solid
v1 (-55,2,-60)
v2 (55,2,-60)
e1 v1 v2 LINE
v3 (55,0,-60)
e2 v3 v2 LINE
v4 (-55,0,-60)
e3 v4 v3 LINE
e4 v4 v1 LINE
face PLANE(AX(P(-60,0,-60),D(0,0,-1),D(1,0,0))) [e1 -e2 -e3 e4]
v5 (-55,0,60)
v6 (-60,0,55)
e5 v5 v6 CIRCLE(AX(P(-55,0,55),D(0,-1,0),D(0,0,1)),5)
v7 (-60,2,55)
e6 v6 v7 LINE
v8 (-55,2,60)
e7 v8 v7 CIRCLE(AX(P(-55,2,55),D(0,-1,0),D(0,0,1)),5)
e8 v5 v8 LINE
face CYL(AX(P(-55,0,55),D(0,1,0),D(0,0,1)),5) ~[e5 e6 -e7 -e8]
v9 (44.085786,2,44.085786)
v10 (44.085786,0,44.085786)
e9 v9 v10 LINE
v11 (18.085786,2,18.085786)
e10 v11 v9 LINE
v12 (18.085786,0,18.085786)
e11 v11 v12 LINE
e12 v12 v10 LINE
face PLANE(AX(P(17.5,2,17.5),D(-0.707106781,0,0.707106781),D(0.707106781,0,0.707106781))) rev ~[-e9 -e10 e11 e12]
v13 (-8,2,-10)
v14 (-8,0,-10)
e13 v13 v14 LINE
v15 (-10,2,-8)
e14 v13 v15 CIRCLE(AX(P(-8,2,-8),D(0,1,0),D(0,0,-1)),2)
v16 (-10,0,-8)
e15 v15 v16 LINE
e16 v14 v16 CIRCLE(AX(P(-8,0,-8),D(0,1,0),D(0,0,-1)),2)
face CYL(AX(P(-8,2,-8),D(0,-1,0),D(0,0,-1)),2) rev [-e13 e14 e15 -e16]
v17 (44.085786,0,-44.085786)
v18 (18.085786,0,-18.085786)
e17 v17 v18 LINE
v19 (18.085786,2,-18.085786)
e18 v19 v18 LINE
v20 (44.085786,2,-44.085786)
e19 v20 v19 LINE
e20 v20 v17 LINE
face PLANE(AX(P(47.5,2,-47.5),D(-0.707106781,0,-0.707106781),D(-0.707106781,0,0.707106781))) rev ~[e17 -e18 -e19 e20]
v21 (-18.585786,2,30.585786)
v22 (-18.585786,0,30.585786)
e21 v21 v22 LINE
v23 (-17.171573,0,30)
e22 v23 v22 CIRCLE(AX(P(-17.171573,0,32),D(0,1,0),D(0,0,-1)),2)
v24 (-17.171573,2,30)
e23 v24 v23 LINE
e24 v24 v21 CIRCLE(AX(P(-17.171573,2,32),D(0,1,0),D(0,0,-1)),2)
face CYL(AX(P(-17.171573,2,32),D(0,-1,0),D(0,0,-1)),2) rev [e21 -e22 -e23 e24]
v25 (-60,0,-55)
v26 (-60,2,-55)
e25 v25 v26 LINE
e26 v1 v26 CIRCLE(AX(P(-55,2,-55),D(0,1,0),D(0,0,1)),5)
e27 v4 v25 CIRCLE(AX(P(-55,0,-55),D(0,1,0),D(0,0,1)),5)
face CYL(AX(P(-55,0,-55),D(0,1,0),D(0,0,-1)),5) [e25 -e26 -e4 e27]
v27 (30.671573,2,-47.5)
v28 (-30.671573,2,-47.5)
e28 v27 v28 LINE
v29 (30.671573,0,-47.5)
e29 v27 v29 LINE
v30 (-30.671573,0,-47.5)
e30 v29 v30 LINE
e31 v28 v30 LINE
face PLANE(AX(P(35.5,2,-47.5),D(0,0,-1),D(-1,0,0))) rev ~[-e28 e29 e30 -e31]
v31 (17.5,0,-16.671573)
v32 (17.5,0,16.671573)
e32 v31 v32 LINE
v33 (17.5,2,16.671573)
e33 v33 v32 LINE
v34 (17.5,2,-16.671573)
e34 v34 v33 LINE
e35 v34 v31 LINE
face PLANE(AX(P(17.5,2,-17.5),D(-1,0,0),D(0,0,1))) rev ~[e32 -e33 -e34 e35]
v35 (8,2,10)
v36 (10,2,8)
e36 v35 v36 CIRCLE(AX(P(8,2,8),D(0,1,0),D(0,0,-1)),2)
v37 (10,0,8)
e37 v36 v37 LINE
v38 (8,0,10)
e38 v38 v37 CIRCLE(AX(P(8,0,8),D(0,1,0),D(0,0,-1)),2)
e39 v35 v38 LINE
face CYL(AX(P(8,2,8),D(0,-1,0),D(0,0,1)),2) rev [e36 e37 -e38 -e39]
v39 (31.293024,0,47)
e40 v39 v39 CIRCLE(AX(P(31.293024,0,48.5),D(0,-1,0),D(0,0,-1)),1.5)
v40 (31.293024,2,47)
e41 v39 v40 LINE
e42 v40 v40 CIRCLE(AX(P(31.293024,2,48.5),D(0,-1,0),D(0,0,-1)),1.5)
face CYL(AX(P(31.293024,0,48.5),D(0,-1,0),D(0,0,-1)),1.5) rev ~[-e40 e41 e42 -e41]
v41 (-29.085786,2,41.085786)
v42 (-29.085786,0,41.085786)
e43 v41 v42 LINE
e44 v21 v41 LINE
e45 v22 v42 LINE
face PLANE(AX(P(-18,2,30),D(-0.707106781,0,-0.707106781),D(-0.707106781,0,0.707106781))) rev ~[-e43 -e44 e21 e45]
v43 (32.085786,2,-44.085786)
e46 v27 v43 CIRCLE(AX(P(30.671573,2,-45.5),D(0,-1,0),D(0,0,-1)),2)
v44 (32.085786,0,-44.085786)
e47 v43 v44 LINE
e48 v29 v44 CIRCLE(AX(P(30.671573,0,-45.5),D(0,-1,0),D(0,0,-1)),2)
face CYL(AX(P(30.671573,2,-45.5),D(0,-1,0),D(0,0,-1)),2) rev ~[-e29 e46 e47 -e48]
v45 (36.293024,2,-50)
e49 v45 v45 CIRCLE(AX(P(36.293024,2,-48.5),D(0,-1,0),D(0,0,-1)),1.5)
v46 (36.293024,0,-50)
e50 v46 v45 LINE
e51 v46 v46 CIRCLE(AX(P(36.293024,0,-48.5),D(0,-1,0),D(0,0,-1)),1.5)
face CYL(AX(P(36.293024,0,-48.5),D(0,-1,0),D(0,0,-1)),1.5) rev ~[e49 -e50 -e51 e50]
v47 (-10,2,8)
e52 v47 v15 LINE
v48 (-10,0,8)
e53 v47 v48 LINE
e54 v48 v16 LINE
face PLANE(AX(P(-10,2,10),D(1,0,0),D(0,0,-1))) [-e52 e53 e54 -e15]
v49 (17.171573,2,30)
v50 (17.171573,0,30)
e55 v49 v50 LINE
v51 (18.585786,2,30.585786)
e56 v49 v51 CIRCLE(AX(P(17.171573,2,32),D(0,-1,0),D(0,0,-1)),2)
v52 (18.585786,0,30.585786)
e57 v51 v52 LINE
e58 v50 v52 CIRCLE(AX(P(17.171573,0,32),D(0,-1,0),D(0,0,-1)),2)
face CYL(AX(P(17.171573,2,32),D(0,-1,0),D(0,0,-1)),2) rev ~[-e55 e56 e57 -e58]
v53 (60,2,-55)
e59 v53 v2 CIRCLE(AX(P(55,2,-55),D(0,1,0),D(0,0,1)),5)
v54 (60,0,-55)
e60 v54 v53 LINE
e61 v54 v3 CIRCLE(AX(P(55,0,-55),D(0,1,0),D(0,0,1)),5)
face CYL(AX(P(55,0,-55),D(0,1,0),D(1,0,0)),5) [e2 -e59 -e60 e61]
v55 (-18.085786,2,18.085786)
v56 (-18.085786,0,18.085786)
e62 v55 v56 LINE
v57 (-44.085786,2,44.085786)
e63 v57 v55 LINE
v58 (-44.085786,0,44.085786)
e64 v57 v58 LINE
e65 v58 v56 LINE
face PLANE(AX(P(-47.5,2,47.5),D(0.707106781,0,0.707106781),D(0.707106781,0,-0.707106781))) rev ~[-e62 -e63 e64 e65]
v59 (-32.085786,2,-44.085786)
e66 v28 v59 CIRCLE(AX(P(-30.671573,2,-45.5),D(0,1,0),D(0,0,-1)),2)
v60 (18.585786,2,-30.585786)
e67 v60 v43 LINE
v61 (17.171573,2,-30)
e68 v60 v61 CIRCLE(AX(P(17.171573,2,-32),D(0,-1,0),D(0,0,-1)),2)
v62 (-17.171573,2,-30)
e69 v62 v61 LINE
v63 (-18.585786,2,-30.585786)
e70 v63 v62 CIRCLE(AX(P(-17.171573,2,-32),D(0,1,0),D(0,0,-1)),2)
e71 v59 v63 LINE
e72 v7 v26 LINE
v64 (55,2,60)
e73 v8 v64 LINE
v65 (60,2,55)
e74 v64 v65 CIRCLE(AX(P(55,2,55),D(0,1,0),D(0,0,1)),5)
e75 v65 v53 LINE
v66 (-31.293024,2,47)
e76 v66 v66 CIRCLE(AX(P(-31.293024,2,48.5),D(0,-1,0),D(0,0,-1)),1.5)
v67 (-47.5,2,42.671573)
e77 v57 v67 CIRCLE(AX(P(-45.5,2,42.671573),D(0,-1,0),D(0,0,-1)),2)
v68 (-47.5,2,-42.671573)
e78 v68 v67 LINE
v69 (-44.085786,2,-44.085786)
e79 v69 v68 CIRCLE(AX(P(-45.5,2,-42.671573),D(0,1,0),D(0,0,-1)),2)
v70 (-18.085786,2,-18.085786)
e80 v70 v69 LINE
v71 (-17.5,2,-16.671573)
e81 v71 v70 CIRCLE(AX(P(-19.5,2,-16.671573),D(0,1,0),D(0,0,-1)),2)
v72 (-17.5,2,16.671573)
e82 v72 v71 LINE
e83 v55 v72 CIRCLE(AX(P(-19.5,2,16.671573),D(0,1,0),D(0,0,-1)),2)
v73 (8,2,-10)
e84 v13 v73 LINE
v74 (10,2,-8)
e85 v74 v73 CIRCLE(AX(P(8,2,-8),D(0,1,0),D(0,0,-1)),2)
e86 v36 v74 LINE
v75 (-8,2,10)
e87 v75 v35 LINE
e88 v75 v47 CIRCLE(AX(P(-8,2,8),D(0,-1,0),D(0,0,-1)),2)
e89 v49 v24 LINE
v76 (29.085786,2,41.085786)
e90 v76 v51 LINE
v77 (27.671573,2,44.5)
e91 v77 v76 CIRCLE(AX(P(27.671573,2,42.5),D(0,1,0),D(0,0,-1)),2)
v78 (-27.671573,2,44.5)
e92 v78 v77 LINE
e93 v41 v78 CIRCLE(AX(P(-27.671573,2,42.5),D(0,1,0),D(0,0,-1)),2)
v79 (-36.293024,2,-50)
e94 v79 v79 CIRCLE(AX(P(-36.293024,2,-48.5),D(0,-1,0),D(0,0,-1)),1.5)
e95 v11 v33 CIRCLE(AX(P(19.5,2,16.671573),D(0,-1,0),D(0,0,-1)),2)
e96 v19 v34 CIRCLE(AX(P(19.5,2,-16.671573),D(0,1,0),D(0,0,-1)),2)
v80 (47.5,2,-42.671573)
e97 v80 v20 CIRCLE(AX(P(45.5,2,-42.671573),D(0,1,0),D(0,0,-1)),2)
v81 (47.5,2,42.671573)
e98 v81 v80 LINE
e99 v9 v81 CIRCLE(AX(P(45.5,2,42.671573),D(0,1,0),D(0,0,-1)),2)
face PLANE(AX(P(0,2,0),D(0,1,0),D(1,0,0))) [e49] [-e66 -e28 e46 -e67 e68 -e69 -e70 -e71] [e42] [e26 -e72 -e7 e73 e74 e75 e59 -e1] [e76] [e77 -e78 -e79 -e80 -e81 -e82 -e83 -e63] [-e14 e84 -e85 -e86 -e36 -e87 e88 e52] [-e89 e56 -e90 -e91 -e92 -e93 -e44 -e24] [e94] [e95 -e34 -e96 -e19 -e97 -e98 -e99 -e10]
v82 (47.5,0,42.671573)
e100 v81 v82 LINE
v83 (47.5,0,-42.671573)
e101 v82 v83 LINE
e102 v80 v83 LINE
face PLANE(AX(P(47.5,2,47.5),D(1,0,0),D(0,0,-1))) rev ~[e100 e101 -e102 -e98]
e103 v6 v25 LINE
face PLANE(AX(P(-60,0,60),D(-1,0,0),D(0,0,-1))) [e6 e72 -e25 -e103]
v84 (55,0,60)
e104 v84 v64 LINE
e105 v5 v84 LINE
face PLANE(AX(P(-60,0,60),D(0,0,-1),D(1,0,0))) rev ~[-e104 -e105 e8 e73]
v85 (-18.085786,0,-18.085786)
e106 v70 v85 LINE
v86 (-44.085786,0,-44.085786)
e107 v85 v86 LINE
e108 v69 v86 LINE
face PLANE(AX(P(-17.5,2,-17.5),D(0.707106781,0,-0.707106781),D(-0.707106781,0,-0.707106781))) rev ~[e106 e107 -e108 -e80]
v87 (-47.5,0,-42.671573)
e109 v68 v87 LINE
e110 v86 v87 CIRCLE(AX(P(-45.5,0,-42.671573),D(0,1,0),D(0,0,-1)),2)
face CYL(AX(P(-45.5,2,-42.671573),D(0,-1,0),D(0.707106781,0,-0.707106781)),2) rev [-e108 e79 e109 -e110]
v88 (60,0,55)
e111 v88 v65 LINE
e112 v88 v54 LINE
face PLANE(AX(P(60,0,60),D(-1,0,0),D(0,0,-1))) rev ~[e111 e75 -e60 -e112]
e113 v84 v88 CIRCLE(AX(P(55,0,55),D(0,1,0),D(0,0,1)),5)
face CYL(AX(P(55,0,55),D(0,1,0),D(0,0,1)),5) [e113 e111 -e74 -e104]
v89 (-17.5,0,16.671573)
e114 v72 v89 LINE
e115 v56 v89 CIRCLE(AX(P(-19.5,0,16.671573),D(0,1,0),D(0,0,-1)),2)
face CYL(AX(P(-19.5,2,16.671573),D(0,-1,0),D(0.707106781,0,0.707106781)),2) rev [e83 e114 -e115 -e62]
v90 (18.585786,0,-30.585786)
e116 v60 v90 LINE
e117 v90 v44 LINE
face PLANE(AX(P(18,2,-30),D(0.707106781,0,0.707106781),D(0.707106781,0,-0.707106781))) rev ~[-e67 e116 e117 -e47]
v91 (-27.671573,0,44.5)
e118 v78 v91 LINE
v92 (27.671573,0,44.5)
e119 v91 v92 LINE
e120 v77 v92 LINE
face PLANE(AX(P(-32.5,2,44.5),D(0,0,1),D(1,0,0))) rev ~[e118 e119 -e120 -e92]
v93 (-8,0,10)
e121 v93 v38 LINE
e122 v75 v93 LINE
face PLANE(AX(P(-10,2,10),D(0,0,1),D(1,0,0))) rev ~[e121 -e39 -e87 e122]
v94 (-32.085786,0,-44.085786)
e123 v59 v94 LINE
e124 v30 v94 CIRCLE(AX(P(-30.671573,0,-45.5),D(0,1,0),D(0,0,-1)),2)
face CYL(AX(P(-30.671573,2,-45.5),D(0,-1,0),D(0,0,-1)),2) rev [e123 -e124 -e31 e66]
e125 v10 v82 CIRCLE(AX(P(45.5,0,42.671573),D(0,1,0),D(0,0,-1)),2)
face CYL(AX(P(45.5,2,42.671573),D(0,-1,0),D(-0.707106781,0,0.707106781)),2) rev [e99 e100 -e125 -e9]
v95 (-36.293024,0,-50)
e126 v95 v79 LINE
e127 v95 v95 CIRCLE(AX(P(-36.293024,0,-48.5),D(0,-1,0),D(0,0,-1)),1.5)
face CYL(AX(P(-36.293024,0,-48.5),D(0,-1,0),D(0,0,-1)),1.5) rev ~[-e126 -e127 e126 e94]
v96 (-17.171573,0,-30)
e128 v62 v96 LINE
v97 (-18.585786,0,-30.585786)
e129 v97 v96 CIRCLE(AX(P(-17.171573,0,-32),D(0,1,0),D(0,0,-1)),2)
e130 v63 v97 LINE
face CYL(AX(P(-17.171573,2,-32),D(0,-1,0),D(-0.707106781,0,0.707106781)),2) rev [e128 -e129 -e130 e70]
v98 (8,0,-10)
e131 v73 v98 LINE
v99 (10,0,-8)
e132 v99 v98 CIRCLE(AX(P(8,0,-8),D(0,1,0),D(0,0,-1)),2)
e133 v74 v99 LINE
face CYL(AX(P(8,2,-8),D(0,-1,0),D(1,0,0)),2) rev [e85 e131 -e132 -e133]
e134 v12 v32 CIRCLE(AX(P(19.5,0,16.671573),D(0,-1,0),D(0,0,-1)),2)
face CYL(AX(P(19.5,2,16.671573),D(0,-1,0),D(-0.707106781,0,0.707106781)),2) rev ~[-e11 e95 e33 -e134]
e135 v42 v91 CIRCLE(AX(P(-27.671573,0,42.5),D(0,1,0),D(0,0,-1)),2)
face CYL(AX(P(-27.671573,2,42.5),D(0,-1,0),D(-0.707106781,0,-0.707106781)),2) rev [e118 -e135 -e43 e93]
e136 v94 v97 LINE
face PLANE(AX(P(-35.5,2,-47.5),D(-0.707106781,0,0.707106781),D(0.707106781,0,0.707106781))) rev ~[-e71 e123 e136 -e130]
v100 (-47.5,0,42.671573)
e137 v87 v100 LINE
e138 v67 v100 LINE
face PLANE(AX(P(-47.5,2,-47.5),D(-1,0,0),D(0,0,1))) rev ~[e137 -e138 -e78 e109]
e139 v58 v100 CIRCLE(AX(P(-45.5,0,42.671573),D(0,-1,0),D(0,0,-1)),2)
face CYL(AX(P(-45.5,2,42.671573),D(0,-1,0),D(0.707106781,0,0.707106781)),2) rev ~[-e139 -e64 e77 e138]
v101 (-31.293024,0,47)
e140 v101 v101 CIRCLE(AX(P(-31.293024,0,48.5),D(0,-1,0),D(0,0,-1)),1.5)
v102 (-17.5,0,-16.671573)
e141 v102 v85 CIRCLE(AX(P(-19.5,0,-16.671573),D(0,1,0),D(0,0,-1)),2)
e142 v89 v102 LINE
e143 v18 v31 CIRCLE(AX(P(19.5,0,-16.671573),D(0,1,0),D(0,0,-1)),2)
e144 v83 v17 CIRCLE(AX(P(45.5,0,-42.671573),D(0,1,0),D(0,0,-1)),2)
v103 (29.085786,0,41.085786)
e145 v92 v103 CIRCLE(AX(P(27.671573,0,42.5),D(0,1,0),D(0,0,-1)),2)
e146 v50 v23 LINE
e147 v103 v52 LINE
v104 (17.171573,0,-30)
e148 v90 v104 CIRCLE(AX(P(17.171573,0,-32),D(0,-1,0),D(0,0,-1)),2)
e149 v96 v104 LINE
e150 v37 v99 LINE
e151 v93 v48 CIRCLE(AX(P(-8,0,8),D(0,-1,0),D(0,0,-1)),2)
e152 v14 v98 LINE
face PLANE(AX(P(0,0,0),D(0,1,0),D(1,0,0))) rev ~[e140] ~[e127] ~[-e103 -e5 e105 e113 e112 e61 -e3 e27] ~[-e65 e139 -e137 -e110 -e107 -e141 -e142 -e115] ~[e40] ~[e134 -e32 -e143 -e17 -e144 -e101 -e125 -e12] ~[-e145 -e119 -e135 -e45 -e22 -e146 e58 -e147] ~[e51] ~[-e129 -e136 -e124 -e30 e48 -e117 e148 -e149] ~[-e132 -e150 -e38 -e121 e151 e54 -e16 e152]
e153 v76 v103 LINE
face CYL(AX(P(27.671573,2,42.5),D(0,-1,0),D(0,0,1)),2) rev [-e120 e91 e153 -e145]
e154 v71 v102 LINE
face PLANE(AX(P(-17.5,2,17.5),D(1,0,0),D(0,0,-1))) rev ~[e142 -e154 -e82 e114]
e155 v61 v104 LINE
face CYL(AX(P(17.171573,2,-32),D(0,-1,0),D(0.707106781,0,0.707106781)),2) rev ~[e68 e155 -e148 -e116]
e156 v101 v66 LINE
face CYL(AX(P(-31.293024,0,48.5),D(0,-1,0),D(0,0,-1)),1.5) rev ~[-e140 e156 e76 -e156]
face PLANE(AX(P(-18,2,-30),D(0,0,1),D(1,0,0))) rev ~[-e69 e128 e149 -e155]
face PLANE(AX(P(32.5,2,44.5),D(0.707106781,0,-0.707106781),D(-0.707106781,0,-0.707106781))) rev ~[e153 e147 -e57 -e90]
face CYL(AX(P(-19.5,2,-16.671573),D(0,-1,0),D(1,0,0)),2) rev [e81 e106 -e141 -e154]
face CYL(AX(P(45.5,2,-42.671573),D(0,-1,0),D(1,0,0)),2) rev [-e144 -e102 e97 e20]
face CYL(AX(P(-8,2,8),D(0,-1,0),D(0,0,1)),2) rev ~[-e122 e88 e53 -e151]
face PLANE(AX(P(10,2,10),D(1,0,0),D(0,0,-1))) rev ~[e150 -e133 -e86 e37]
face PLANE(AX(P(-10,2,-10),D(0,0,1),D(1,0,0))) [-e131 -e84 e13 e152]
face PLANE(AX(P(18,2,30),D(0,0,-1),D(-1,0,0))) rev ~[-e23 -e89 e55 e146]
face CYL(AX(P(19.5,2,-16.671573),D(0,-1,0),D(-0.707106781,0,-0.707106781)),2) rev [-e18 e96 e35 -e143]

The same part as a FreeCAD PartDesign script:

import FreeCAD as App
import Part
import Sketcher


def edges_at(feature, points):
    """Names of the edges that pass closest to the given points."""
    edges = feature.Shape.Edges
    near = lambda p: min(range(len(edges)), key=lambda i: edges[i].distToShape(Part.Vertex(*p))[0])
    return sorted({f"Edge{near(p) + 1}" for p in points})


def add_polygon(sketch, points):
    """Adds a closed chain of lines whose ends are joined by coincident constraints."""
    first, n = sketch.GeometryCount, len(points)
    for a, b in zip(points, points[1:] + points[:1]):
        sketch.addGeometry(Part.LineSegment(App.Vector(*a, 0), App.Vector(*b, 0)), False)
    for i in range(n):
        sketch.addConstraint(Sketcher.Constraint("Coincident", first + i, 2, first + (i + 1) % n, 1))

doc = App.newDocument("Part")
body = doc.addObject("PartDesign::Body", "Body")

# Sketch on XZ plane
sketch1 = body.newObject("Sketcher::SketchObject", "Sketch")
sketch1.AttachmentSupport = (doc.getObject("XZ_Plane"), [""])
sketch1.MapMode = "FlatFace"
add_polygon(sketch1, [(-60, -60), (-60, 60), (60, 60), (60, -60)])  # lines 0-3
sketch1.addConstraint([
    Sketcher.Constraint("Vertical", 0),
    Sketcher.Constraint("Horizontal", 1),
    Sketcher.Constraint("Vertical", 2),
    Sketcher.Constraint("Horizontal", 3),
    Sketcher.Constraint("Symmetric", 0, 2, 2, 2, -1, 1),
    Sketcher.Constraint("Equal", 3, 0),
    Sketcher.Constraint("DistanceX", 1, 1, 1, 2, 120.0),
])
pad1 = body.newObject("PartDesign::Pad", "Pad")
pad1.Profile = sketch1
pad1.Length = 2
pad1.Reversed = True
doc.recompute()

fillet = body.newObject("PartDesign::Fillet", "Fillet")
fillet.Base = (pad1, edges_at(pad1, [(60, 1, 60)]))
fillet.Radius = 5
doc.recompute()

fillet2 = body.newObject("PartDesign::Fillet", "Fillet001")
fillet2.Base = (fillet, edges_at(fillet, [(-60, 1, 60)]))
fillet2.Radius = 5
doc.recompute()

fillet3 = body.newObject("PartDesign::Fillet", "Fillet002")
fillet3.Base = (fillet2, edges_at(fillet2, [(60, 1, -60)]))
fillet3.Radius = 5
doc.recompute()

fillet4 = body.newObject("PartDesign::Fillet", "Fillet003")
fillet4.Base = (fillet3, edges_at(fillet3, [(-60, 1, -60)]))
fillet4.Radius = 5

# Sketch on XZ plane
sketch2 = body.newObject("Sketcher::SketchObject", "Sketch001")
sketch2.AttachmentSupport = (doc.getObject("XZ_Plane"), [""])
sketch2.MapMode = "FlatFace"
sketch2.AttachmentOffset = App.Placement(App.Vector(0, 0, -2), App.Rotation())
add_polygon(sketch2, [(-47.5, 47.5), (-17.5, 17.5), (-17.5, -17.5), (-47.5, -47.5)])  # lines 0-3
add_polygon(sketch2, [(18, 30), (-18, 30), (-32.5, 44.5), (32.5, 44.5)])  # lines 4-7
add_polygon(sketch2, [(-10, -10), (-10, 10), (10, 10), (10, -10)])  # lines 8-11
add_polygon(sketch2, [(35.5, -47.5), (-35.5, -47.5), (-18, -30), (18, -30)])  # lines 12-15
add_polygon(sketch2, [(17.5, 17.5), (47.5, 47.5), (47.5, -47.5), (17.5, -17.5)])  # lines 16-19
sketch2.addConstraint([
    Sketcher.Constraint("Vertical", 1),
    Sketcher.Constraint("Vertical", 3),
    Sketcher.Constraint("Horizontal", 4),
    Sketcher.Constraint("Horizontal", 6),
    Sketcher.Constraint("Vertical", 8),
    Sketcher.Constraint("Horizontal", 9),
    Sketcher.Constraint("Vertical", 10),
    Sketcher.Constraint("Horizontal", 11),
    Sketcher.Constraint("Horizontal", 12),
    Sketcher.Constraint("Horizontal", 14),
    Sketcher.Constraint("Vertical", 17),
    Sketcher.Constraint("Vertical", 19),
    Sketcher.Constraint("Symmetric", 8, 2, 10, 2, -1, 1),
    Sketcher.Constraint("Symmetric", 7, 2, 13, 2, -1, 1),
    Sketcher.Constraint("Symmetric", 2, 2, 16, 2, -1, 1),
    Sketcher.Constraint("Symmetric", 0, 2, 18, 2, -1, 1),
    Sketcher.Constraint("Perpendicular", 0, 2),
    Sketcher.Constraint("Perpendicular", 2, 5),
    Sketcher.Constraint("Perpendicular", 5, 7),
    Sketcher.Constraint("Parallel", 7, 13),
    Sketcher.Constraint("Perpendicular", 13, 15),
    Sketcher.Constraint("Perpendicular", 15, 16),
    Sketcher.Constraint("Perpendicular", 16, 18),
    Sketcher.Constraint("Horizontal", 2, 2, 12, 2),
    Sketcher.Constraint("Horizontal", 3, 2, 16, 2),
    Sketcher.Constraint("Horizontal", 1, 2, 18, 2),
    Sketcher.Constraint("Vertical", 4, 2, 13, 2),
    Sketcher.Constraint("Vertical", 7, 2, 14, 2),
    Sketcher.Constraint("Equal", 11, 8),
    Sketcher.Constraint("DistanceX", 4, 2, 4, 1, 36.0),
    Sketcher.Constraint("DistanceX", 6, 1, 6, 2, 65.0),
    Sketcher.Constraint("DistanceX", 9, 1, 9, 2, 20.0),
    Sketcher.Constraint("DistanceX", 12, 2, 12, 1, 71.0),
    Sketcher.Constraint("DistanceY", 1, 2, 1, 1, 35.0),
    Sketcher.Constraint("DistanceY", 3, 1, 3, 2, 95.0),
    Sketcher.Constraint("DistanceX", 3, 2, 5, 2, 15.0),
])
pocket1 = body.newObject("PartDesign::Pocket", "Pocket")
pocket1.Profile = sketch2
pocket1.Length = 10
pocket1.Reversed = True
doc.recompute()

fillet5 = body.newObject("PartDesign::Fillet", "Fillet004")
fillet5.Base = (pocket1, edges_at(pocket1, [(-35.5, 1, -47.5), (35.5, 1, -47.5)]))
fillet5.Radius = 2
doc.recompute()

fillet6 = body.newObject("PartDesign::Fillet", "Fillet005")
fillet6.Base = (fillet5, edges_at(fillet5, [
    (-18, 1, -30),
    (18, 1, -30),
    (-32.5, 1, 44.5),
    (-18, 1, 30),
    (18, 1, 30),
    (32.5, 1, 44.5),
    (10, 1, 10),
    (-10, 1, 10),
    (-10, 1, -10),
    (10, 1, -10),
    (-17.5, 1, -17.5),
    (-17.5, 1, 17.5),
    (-47.5, 1, 47.5),
    (-47.5, 1, -47.5),
    (47.5, 1, -47.5),
    (47.5, 1, 47.5),
    (17.5, 1, 17.5),
    (17.5, 1, -17.5),
]))
fillet6.Radius = 2

# Sketch on XZ plane
sketch3 = body.newObject("Sketcher::SketchObject", "Sketch002")
sketch3.AttachmentSupport = (doc.getObject("XZ_Plane"), [""])
sketch3.MapMode = "FlatFace"
sketch3.addGeometry([
    Part.Circle(App.Vector(-36.293024, -48.5, 0), App.Vector(0, 0, 1), 1.5),
    Part.Circle(App.Vector(-31.293024, 48.5, 0), App.Vector(0, 0, 1), 1.5),
    Part.Circle(App.Vector(31.293024, 48.5, 0), App.Vector(0, 0, 1), 1.5),
    Part.Circle(App.Vector(36.293024, -48.5, 0), App.Vector(0, 0, 1), 1.5),
], False)
sketch3.addConstraint([
    Sketcher.Constraint("Equal", 0, 1),
    Sketcher.Constraint("Equal", 1, 2),
    Sketcher.Constraint("Equal", 2, 3),
    Sketcher.Constraint("Symmetric", 1, 3, 2, 3, -2),
    Sketcher.Constraint("Symmetric", 0, 3, 3, 3, -2),
    Sketcher.Constraint("Diameter", 0, 3.0),
    Sketcher.Constraint("DistanceX", 0, 3, 1, 3, 5.0),
    Sketcher.Constraint("DistanceY", 0, 3, 1, 3, 97.0),
    Sketcher.Constraint("DistanceY", 0, 3, -1, 1, 48.5),
    Sketcher.Constraint("DistanceX", 1, 3, 2, 3, 62.586049),
])
pocket2 = body.newObject("PartDesign::Pocket", "Pocket001")
pocket2.Profile = sketch3
pocket2.Length = 10

doc.recompute()
